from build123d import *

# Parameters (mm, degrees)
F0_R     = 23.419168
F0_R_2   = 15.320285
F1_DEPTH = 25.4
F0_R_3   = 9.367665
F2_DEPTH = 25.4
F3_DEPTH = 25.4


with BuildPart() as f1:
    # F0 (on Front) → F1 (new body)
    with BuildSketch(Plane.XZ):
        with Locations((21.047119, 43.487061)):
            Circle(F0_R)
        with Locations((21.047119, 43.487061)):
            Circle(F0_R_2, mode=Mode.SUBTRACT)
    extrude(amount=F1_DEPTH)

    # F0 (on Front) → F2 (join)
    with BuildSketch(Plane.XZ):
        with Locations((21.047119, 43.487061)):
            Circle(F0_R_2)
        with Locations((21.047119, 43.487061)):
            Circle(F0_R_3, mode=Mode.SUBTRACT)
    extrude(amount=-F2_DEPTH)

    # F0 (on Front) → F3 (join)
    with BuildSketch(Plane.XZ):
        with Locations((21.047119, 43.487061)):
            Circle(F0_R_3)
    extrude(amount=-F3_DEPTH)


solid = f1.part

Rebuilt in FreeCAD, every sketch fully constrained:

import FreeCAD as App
import Part
import Sketcher
Q = App.Units.Quantity

doc = App.newDocument("Part")
body = doc.addObject("PartDesign::Body", "Body")
body.AllowCompound = True

# Sketch on XZ plane
sketch1 = body.newObject("Sketcher::SketchObject", "Sketch")
sketch1.AttachmentSupport = (doc.getObject("XZ_Plane"), [""])
sketch1.MapMode = "FlatFace"
sketch1.addGeometry([
    Part.Circle(App.Vector(21, 43, 0), App.Vector(0, 0, 1), 23),
    Part.Circle(App.Vector(21, 43, 0), App.Vector(0, 0, 1), 15),
], False)
sketch1.addConstraint([
    Sketcher.Constraint("Coincident", 1, 3, 0, 3),
    Sketcher.Constraint("Diameter", 1, Q("30.64057 mm")),
    Sketcher.Constraint("Diameter", 0, Q("46.838336 mm")),
    Sketcher.Constraint("DistanceX", -1, 1, 0, 3, Q("21.047119 mm")),
    Sketcher.Constraint("DistanceY", -1, 1, 0, 3, Q("43.487061 mm")),
])
pad1 = body.newObject("PartDesign::Pad", "Pad")
pad1.Profile = sketch1
pad1.Length = Q("1 in")

# Sketch on XZ plane
sketch2 = body.newObject("Sketcher::SketchObject", "Sketch001")
sketch2.AttachmentSupport = (doc.getObject("XZ_Plane"), [""])
sketch2.MapMode = "FlatFace"
sketch2.addGeometry([
    Part.Circle(App.Vector(21, 43, 0), App.Vector(0, 0, 1), 15),
    Part.Circle(App.Vector(21, 43, 0), App.Vector(0, 0, 1), 9),
], False)
sketch2.addConstraint([
    Sketcher.Constraint("Coincident", 1, 3, 0, 3),
    Sketcher.Constraint("Diameter", 0, Q("30.64057 mm")),
    Sketcher.Constraint("Diameter", 1, Q("18.73533 mm")),
    Sketcher.Constraint("DistanceX", -1, 1, 0, 3, Q("21.047119 mm")),
    Sketcher.Constraint("DistanceY", -1, 1, 0, 3, Q("43.487061 mm")),
])
pad2 = body.newObject("PartDesign::Pad", "Pad001")
pad2.Profile = sketch2
pad2.Length = Q("1 in")
pad2.Reversed = True

# Sketch on XZ plane
sketch3 = body.newObject("Sketcher::SketchObject", "Sketch002")
sketch3.AttachmentSupport = (doc.getObject("XZ_Plane"), [""])
sketch3.MapMode = "FlatFace"
sketch3.addGeometry(Part.Circle(App.Vector(21, 43, 0), App.Vector(0, 0, 1), 9), False)
sketch3.addConstraint([
    Sketcher.Constraint("Diameter", 0, Q("18.73533 mm")),
    Sketcher.Constraint("DistanceX", -1, 1, 0, 3, Q("21.047119 mm")),
    Sketcher.Constraint("DistanceY", -1, 1, 0, 3, Q("43.487061 mm")),
])
pad3 = body.newObject("PartDesign::Pad", "Pad002")
pad3.Profile = sketch3
pad3.Length = Q("1 in")
pad3.Reversed = True

doc.recompute()
